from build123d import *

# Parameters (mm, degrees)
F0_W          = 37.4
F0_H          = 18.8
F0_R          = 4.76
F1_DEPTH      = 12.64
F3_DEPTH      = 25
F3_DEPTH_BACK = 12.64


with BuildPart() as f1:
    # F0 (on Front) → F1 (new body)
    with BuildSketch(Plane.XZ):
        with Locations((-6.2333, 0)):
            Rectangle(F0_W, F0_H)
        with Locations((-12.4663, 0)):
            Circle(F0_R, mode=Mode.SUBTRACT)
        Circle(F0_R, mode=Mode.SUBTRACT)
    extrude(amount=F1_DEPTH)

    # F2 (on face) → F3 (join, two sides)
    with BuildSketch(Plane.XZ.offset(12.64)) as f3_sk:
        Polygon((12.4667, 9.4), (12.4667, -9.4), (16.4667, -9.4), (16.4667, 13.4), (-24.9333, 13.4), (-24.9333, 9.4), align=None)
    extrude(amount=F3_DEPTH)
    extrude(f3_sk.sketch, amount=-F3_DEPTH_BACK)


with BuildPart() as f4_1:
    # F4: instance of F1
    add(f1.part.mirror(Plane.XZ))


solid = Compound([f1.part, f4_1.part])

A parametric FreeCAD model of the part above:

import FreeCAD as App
import Part
import Sketcher

V = App.Vector
Q = App.Units.Quantity


def add_polygon(sketch, points):
    """Adds a closed chain of lines whose ends are joined by coincident constraints."""
    first, n = sketch.GeometryCount, len(points)
    for a, b in zip(points, points[1:] + points[:1]):
        sketch.addGeometry(Part.LineSegment(App.Vector(*a, 0), App.Vector(*b, 0)), False)
    for i in range(n):
        sketch.addConstraint(Sketcher.Constraint("Coincident", first + i, 2, first + (i + 1) % n, 1))

doc = App.newDocument("Part")
body = doc.addObject("PartDesign::Body", "Body")

# Sketch on XZ plane
sketch1 = body.newObject("Sketcher::SketchObject", "Sketch")
sketch1.AttachmentSupport = (doc.getObject("XZ_Plane"), [""])
sketch1.MapMode = "FlatFace"
add_polygon(sketch1, [(-24.9333, 9.4), (-24.9333, -9.4), (12.4667, -9.4), (12.4667, 9.4)])  # lines 0-3
sketch1.addGeometry(Part.Circle(V(-12.4663, 0, 0), V(0, 0, 1), 4.76), False)  # 4
sketch1.addGeometry(Part.Circle(V(0, 0, 0), V(0, 0, 1), 4.76), False)  # 5
sketch1.addConstraint(Sketcher.Constraint("Vertical", 0))
sketch1.addConstraint(Sketcher.Constraint("Horizontal", 1))
sketch1.addConstraint(Sketcher.Constraint("Vertical", 2))
sketch1.addConstraint(Sketcher.Constraint("Horizontal", 3))
sketch1.addConstraint(Sketcher.Constraint("Coincident", 5, 3, -1, 1))
sketch1.addConstraint(Sketcher.Constraint("Equal", 4, 5))
sketch1.addConstraint(Sketcher.Constraint("PointOnObject", 4, 3, -1))
sketch1.addConstraint(Sketcher.Constraint("Diameter", 4, Q("9.52 mm")))
sketch1.addConstraint(Sketcher.Constraint("DistanceX", 1, 1, 1, 2, Q("37.4 mm")))
sketch1.addConstraint(Sketcher.Constraint("DistanceY", 0, 2, 0, 1, Q("18.8 mm")))
sketch1.addConstraint(Sketcher.Constraint("DistanceY", 0, 2, -1, 1, Q("9.4 mm")))
sketch1.addConstraint(Sketcher.Constraint("DistanceX", 0, 2, 4, 3, Q("12.467 mm")))
sketch1.addConstraint(Sketcher.Constraint("DistanceX", 4, 3, -1, 1, Q("12.4663 mm")))
pad1 = body.newObject("PartDesign::Pad", "Pad")
pad1.Profile = sketch1
pad1.Length = 12.64

# Sketch on XZ plane
sketch2 = body.newObject("Sketcher::SketchObject", "Sketch001")
sketch2.AttachmentSupport = (doc.getObject("XZ_Plane"), [""])
sketch2.MapMode = "FlatFace"
sketch2.AttachmentOffset = App.Placement(V(0, 0, 12.64), App.Rotation())
add_polygon(sketch2, [(12.4667, 9.4), (12.4667, -9.4), (16.4667, -9.4), (16.4667, 13.4), (-24.9333, 13.4), (-24.9333, 9.4)])  # lines 0-5
sketch2.addConstraint(Sketcher.Constraint("Vertical", 0))
sketch2.addConstraint(Sketcher.Constraint("Horizontal", 1))
sketch2.addConstraint(Sketcher.Constraint("Vertical", 2))
sketch2.addConstraint(Sketcher.Constraint("Horizontal", 3))
sketch2.addConstraint(Sketcher.Constraint("Vertical", 4))
sketch2.addConstraint(Sketcher.Constraint("Horizontal", 5))
sketch2.addConstraint(Sketcher.Constraint("Equal", 1, 4))
sketch2.addConstraint(Sketcher.Constraint("DistanceX", 1, 1, 1, 2, Q("4 mm")))
sketch2.addConstraint(Sketcher.Constraint("DistanceX", 3, 2, 3, 1, Q("41.4 mm")))
sketch2.addConstraint(Sketcher.Constraint("DistanceY", 0, 2, 0, 1, Q("18.8 mm")))
sketch2.addConstraint(Sketcher.Constraint("DistanceY", 0, 2, -1, 1, Q("9.4 mm")))
sketch2.addConstraint(Sketcher.Constraint("DistanceX", -1, 1, 0, 2, Q("12.4667 mm")))
pad2 = body.newObject("PartDesign::Pad", "Pad001")
pad2.Profile = sketch2
pad2.Type = "TwoLengths"
pad2.Length = 25
pad2.Length2 = 12.64
body2 = doc.addObject("PartDesign::Body", "Body001")
doc.recompute()

mirroring = doc.addObject("Part::Mirroring", "Mirroring")
mirroring.Source = body
mirroring.Base = V(0, 0, 0)
mirroring.Normal = V(0, -1, 0)
body2.BaseFeature = mirroring
doc.recompute()
mirroring.Visibility = False

doc.recompute()
